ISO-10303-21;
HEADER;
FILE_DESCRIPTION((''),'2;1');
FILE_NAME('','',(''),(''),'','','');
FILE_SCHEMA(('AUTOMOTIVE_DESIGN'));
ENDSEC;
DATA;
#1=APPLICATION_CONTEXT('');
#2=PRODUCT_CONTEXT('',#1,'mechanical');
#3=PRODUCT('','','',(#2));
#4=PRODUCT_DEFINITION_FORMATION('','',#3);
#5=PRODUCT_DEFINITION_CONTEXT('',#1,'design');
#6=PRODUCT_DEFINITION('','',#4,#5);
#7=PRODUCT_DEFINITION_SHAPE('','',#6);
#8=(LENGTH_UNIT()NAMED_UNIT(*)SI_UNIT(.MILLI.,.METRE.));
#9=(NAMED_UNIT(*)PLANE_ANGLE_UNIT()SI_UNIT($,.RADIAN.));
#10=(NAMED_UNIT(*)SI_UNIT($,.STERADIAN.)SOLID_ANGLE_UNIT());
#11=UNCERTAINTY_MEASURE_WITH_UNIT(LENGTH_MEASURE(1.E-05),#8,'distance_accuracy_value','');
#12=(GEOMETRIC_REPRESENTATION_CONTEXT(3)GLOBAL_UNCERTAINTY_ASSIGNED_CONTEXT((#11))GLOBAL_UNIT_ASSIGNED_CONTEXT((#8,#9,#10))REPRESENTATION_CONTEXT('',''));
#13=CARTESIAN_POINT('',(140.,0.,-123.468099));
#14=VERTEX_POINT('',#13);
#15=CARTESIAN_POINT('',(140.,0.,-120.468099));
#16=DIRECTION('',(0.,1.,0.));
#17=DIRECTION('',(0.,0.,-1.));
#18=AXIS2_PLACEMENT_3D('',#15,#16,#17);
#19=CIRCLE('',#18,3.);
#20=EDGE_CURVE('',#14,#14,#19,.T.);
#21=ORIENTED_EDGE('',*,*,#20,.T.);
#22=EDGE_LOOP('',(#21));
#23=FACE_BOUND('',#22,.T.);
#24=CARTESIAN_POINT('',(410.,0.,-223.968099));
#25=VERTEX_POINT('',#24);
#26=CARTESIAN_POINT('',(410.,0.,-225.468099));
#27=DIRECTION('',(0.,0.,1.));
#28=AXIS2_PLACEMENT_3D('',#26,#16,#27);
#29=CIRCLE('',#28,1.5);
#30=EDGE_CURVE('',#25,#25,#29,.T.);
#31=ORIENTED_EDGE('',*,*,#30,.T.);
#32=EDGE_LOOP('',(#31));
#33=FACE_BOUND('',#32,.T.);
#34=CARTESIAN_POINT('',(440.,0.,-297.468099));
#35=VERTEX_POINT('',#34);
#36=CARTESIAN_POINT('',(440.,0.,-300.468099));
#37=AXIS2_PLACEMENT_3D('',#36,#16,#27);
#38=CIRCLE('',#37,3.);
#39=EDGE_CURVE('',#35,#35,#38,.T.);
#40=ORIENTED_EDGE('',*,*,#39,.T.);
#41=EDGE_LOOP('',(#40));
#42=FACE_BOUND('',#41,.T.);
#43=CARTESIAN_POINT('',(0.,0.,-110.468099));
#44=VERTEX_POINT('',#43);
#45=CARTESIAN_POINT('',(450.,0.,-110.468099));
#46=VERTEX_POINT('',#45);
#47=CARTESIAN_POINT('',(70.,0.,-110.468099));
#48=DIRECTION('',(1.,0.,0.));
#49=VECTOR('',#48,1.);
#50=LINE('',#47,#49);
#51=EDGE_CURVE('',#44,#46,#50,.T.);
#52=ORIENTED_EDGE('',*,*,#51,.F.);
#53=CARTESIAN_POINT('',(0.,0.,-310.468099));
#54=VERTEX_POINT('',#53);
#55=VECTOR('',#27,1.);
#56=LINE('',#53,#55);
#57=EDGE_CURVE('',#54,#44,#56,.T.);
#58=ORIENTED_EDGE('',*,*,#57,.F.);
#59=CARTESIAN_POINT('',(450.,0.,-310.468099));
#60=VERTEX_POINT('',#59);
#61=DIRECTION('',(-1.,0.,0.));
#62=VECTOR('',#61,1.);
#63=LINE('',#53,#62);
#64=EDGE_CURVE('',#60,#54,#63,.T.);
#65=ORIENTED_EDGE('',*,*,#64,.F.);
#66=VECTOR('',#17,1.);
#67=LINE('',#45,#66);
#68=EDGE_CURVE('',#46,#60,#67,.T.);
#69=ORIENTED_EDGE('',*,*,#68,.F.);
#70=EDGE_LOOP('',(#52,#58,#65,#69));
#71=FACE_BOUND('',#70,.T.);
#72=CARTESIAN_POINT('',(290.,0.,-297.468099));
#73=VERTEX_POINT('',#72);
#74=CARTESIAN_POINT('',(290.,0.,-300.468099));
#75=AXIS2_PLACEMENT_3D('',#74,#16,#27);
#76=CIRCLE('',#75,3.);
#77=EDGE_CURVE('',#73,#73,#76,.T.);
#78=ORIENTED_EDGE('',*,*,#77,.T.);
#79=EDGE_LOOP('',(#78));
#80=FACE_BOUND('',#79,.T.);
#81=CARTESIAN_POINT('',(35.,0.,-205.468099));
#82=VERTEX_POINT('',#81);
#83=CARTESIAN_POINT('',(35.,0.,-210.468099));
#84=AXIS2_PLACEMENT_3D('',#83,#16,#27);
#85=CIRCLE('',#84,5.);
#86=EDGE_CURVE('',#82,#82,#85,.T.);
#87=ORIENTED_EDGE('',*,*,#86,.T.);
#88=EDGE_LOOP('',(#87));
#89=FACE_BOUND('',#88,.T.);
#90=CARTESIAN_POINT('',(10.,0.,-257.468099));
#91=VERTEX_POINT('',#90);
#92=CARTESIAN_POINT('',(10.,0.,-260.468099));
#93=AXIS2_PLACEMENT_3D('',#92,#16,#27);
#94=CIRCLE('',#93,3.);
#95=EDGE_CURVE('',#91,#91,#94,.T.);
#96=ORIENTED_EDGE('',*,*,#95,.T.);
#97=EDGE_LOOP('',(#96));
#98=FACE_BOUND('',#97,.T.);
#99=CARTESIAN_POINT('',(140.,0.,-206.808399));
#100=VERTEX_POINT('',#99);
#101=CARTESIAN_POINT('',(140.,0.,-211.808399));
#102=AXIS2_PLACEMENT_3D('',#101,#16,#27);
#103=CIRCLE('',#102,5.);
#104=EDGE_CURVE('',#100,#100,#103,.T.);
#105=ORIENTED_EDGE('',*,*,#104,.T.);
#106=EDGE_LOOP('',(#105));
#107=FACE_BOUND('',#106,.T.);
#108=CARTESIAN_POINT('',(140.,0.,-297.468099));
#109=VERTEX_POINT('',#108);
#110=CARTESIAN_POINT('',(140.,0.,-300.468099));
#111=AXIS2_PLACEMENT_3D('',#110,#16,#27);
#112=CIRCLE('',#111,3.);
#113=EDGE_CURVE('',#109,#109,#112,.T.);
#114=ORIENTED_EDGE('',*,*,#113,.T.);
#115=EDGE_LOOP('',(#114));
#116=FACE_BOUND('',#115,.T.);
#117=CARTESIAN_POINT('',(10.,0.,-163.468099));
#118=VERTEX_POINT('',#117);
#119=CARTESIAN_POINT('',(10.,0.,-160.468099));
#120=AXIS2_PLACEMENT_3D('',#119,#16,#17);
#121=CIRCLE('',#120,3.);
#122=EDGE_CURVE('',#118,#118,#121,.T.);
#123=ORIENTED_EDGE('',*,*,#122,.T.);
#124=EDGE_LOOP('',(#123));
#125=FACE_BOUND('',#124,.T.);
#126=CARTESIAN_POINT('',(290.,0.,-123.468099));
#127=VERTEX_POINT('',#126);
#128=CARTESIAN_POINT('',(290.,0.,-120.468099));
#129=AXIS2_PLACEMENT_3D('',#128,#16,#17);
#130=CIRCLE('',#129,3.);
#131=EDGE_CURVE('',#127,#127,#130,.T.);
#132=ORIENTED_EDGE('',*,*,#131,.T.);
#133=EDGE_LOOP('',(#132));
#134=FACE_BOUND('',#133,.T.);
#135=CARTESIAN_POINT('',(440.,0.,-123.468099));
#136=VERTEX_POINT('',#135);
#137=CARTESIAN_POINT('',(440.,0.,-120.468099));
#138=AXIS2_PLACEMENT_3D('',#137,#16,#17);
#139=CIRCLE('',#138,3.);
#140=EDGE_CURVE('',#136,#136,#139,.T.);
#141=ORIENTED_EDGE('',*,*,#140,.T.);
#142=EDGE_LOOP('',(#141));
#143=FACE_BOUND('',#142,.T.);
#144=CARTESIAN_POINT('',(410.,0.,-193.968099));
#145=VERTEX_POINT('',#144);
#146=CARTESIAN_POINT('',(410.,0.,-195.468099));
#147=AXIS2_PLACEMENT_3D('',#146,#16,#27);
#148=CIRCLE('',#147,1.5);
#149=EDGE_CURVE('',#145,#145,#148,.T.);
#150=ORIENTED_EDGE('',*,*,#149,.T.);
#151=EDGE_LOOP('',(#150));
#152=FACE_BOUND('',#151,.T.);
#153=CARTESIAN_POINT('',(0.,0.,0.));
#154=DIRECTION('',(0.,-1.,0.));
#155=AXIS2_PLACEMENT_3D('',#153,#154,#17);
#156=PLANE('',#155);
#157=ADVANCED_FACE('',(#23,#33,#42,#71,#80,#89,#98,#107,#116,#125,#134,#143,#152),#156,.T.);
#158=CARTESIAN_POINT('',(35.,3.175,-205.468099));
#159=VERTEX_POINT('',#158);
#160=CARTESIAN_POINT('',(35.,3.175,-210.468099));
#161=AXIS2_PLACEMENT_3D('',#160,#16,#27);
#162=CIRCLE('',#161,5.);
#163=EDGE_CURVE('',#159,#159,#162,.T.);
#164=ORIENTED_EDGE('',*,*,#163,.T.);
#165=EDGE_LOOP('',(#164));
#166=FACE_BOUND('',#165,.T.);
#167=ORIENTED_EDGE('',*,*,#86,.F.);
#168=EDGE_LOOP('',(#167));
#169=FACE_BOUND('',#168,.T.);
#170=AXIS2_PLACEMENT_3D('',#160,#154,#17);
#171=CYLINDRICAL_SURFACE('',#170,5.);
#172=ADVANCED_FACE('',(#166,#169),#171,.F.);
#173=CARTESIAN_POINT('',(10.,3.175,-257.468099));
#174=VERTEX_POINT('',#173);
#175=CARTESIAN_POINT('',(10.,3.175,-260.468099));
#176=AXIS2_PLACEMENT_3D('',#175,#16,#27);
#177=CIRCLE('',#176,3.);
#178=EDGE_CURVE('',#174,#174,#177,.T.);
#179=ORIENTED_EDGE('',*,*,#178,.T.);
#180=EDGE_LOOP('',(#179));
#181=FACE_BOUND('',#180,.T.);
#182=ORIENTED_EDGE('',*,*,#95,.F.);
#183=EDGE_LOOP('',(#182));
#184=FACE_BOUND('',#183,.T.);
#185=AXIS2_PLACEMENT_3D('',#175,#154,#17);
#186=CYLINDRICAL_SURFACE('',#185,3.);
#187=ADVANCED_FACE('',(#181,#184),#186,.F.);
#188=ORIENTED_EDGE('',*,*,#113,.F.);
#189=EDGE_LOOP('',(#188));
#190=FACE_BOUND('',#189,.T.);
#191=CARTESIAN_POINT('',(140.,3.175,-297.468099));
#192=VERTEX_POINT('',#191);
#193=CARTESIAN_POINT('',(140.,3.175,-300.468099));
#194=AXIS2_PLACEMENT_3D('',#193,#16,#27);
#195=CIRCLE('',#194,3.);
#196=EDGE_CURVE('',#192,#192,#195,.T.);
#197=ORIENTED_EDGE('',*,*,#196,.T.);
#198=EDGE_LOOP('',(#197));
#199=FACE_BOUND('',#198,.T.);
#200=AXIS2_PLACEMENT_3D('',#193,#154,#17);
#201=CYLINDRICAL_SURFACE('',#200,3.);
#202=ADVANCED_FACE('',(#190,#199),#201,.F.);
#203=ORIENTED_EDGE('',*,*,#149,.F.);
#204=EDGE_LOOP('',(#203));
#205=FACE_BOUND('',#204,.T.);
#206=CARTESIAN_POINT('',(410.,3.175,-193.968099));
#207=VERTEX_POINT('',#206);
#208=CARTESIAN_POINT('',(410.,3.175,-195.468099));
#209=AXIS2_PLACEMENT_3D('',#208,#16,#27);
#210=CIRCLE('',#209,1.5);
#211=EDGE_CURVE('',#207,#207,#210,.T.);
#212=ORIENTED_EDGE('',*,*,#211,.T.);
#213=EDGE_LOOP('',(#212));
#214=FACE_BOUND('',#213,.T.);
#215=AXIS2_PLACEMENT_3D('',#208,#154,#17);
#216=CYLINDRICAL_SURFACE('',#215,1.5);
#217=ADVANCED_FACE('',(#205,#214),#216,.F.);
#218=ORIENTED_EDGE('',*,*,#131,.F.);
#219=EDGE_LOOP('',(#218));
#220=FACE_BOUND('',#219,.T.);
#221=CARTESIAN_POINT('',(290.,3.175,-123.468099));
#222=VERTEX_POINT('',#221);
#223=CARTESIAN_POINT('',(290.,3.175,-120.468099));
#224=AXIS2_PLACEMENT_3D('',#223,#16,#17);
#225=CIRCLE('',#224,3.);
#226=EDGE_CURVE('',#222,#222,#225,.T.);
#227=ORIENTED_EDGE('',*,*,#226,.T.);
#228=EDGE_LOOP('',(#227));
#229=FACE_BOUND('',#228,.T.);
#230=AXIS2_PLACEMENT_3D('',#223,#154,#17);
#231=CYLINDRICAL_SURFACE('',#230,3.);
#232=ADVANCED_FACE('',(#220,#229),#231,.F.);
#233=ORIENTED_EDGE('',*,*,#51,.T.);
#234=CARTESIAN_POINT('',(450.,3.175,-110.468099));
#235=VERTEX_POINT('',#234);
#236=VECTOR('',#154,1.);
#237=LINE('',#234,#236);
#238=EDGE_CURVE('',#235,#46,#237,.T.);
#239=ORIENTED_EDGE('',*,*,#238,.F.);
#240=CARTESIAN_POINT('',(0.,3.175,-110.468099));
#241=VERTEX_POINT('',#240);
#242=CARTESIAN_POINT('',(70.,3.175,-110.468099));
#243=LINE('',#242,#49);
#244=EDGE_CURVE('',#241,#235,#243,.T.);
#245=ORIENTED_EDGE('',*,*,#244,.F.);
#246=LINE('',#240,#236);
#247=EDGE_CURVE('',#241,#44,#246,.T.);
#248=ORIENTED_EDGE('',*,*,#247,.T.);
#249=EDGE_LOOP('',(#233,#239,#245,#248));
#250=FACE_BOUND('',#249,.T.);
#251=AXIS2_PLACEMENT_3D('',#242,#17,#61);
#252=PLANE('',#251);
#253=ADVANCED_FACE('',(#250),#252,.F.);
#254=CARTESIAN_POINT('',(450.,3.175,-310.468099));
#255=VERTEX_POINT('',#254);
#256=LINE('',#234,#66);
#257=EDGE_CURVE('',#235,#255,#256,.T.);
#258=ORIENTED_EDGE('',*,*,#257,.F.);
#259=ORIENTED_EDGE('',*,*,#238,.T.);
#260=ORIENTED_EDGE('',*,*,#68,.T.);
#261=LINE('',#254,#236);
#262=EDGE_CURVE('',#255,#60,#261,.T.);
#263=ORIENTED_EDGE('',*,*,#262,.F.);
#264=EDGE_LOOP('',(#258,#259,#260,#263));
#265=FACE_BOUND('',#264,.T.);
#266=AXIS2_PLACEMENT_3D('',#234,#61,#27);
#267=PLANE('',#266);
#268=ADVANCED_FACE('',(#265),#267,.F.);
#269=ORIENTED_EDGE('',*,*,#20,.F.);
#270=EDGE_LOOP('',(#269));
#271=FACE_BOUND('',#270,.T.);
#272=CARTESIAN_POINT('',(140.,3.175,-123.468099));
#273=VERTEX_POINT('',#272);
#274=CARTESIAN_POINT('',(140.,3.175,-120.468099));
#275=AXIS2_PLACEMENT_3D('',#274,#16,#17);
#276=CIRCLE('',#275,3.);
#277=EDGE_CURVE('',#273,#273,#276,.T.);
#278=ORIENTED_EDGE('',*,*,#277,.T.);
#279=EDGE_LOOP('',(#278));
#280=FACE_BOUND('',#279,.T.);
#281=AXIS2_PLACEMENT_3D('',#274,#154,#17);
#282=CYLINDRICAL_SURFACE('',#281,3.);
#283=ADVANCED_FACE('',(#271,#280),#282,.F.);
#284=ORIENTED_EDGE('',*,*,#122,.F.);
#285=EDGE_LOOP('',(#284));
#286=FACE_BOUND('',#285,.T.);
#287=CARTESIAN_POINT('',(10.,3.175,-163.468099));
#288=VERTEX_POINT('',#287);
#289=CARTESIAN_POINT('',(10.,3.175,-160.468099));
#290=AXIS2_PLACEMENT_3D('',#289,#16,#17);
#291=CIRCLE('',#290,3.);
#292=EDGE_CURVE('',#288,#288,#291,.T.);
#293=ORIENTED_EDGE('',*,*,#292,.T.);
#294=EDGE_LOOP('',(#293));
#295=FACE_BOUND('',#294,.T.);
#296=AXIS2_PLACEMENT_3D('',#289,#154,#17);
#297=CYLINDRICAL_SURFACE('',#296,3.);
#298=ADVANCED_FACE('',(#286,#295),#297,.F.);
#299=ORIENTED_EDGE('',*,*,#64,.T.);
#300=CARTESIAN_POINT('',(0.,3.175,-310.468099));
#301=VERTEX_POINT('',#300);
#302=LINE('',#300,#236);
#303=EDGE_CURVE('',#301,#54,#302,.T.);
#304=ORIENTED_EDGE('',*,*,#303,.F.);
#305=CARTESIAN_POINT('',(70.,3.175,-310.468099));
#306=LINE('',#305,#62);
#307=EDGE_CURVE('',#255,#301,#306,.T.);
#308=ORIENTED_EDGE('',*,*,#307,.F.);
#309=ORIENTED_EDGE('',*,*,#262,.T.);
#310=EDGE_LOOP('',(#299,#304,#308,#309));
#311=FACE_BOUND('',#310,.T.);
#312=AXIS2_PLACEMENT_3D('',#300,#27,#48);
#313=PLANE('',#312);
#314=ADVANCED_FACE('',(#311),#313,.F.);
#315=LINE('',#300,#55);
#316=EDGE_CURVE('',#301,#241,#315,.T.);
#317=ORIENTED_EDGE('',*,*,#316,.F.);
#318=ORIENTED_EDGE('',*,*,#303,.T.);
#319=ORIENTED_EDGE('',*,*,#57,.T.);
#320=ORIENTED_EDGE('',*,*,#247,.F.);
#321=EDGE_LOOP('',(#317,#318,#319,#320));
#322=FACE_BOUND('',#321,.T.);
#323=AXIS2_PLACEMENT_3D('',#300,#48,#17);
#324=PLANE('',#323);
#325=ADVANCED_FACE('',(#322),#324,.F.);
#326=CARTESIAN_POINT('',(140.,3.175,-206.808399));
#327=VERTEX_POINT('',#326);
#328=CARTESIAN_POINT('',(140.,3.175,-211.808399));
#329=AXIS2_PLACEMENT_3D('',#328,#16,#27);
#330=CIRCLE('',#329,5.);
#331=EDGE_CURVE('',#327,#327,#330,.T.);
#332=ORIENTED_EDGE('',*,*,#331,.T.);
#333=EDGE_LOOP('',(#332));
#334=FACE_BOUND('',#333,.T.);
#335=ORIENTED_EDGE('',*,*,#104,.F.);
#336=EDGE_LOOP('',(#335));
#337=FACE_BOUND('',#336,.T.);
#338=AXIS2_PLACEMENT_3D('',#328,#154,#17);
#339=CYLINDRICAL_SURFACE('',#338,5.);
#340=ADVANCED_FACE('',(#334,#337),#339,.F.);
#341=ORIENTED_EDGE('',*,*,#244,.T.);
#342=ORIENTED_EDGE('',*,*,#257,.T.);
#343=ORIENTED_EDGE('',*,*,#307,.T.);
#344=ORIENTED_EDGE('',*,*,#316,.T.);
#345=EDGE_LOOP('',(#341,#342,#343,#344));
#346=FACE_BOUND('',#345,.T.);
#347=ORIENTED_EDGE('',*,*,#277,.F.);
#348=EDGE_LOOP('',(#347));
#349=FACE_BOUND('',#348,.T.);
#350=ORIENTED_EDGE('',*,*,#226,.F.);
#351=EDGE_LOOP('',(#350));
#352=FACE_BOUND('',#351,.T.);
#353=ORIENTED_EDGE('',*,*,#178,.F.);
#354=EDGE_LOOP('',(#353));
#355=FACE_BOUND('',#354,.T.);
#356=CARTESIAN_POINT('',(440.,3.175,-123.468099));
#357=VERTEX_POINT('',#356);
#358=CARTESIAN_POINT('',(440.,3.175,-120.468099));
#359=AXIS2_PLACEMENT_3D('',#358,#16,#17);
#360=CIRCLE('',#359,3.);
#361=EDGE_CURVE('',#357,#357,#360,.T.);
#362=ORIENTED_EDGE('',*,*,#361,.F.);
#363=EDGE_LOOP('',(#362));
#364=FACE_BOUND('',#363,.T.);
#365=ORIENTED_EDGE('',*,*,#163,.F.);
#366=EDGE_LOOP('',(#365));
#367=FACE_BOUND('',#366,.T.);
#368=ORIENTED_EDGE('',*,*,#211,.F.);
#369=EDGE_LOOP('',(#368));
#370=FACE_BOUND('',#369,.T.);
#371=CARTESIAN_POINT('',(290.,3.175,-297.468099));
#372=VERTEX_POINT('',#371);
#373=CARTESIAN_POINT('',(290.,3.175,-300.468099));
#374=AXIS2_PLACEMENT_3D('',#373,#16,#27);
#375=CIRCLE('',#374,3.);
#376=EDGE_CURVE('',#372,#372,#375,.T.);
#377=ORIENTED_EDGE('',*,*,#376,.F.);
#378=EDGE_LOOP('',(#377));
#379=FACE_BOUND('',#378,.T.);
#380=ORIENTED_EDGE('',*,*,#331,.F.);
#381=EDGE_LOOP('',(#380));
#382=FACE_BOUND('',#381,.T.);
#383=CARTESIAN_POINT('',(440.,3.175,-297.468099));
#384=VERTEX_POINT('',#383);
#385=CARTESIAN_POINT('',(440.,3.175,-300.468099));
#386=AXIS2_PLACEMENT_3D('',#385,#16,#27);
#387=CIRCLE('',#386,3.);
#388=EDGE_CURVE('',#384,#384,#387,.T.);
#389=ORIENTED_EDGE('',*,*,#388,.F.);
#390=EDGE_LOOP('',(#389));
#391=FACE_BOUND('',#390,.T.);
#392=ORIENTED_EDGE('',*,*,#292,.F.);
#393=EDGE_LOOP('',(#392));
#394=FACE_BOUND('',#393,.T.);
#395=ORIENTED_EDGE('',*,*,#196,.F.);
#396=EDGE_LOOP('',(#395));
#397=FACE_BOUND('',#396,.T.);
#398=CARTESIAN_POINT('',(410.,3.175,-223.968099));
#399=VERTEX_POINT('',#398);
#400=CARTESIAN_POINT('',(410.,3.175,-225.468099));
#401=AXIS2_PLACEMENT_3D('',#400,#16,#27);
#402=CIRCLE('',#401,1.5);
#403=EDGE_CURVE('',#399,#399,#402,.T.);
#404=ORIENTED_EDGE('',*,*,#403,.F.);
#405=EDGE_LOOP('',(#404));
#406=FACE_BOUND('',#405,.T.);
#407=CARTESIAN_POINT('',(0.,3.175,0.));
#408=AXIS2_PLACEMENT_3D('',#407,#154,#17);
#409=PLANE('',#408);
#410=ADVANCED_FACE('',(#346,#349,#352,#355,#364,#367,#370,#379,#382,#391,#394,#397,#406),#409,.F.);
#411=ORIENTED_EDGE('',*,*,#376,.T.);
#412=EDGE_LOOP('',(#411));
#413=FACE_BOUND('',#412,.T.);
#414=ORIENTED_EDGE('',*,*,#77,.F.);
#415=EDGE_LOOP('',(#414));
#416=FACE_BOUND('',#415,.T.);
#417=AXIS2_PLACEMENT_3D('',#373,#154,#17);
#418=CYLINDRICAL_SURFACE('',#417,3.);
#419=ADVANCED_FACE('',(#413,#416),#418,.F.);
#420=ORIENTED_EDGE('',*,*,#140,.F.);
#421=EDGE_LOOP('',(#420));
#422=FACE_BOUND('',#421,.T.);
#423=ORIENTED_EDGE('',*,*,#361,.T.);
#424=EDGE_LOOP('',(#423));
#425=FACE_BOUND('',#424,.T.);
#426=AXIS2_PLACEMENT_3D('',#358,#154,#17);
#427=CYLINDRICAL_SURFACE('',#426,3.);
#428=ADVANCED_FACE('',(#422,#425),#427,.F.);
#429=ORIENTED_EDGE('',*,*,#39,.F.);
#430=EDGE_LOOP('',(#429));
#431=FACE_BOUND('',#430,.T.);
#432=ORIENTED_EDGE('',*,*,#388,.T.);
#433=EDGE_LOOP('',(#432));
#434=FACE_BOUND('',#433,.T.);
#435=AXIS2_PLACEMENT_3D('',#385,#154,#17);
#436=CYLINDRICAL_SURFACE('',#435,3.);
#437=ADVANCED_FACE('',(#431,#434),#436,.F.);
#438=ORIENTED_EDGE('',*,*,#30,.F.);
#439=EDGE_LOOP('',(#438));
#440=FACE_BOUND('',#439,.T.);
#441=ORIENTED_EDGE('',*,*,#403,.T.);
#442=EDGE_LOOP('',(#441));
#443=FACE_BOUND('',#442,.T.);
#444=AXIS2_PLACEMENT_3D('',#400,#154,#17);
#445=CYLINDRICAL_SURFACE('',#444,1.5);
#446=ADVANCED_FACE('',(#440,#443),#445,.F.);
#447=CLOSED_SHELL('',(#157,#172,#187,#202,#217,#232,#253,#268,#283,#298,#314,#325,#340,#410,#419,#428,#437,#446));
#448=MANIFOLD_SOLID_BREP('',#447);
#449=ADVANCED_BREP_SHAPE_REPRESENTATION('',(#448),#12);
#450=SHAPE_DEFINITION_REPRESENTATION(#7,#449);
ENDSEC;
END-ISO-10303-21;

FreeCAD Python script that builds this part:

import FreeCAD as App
import Part
import Sketcher

doc = App.newDocument("Part")
body = doc.addObject("PartDesign::Body", "Body")

# Sketch on XZ plane
sketch1 = body.newObject("Sketcher::SketchObject", "Sketch")
sketch1.AttachmentSupport = (doc.getObject("XZ_Plane"), [""])
sketch1.MapMode = "FlatFace"
sketch1.addGeometry([
    Part.LineSegment(App.Vector(450, -110.5, 0), App.Vector(450, -310.5, 0)),  # 0
    Part.LineSegment(App.Vector(450, -310.5, 0), App.Vector(0, -310.5, 0)),  # 1
    Part.LineSegment(App.Vector(0, -310.5, 0), App.Vector(0, -110.5, 0)),  # 2
    Part.LineSegment(App.Vector(0, -110.5, 0), App.Vector(450, -110.5, 0)),  # 3
    Part.Circle(App.Vector(10, -160.5, 0), App.Vector(0, 0, 1), 3),  # 4
    Part.Circle(App.Vector(140, -120.5, 0), App.Vector(0, 0, 1), 3),  # 5
    Part.Circle(App.Vector(290, -120.5, 0), App.Vector(0, 0, 1), 3),  # 6
    Part.Circle(App.Vector(440, -120.5, 0), App.Vector(0, 0, 1), 3),  # 7
    Part.Circle(App.Vector(410, -195.5, 0), App.Vector(0, 0, 1), 1.5),  # 8
    Part.Circle(App.Vector(35, -210.5, 0), App.Vector(0, 0, 1), 5),  # 9
    Part.Circle(App.Vector(140, -211.8, 0), App.Vector(0, 0, 1), 5),  # 10
    Part.Circle(App.Vector(10, -260.5, 0), App.Vector(0, 0, 1), 3),  # 11
    Part.Circle(App.Vector(140, -300.5, 0), App.Vector(0, 0, 1), 3),  # 12
    Part.Circle(App.Vector(410, -225.5, 0), App.Vector(0, 0, 1), 1.5),  # 13
    Part.Circle(App.Vector(290, -300.5, 0), App.Vector(0, 0, 1), 3),  # 14
    Part.Circle(App.Vector(440, -300.5, 0), App.Vector(0, 0, 1), 3),  # 15
], False)
sketch1.addConstraint([
    Sketcher.Constraint("Coincident", 0, 2, 1, 1),
    Sketcher.Constraint("Coincident", 1, 2, 2, 1),
    Sketcher.Constraint("Coincident", 2, 2, 3, 1),
    Sketcher.Constraint("Coincident", 3, 2, 0, 1),
    Sketcher.Constraint("Vertical", 0),
    Sketcher.Constraint("Horizontal", 1),
    Sketcher.Constraint("Vertical", 2),
    Sketcher.Constraint("Horizontal", 3),
    Sketcher.Constraint("Equal", 4, 5),
    Sketcher.Constraint("Equal", 5, 6),
    Sketcher.Constraint("Equal", 6, 7),
    Sketcher.Constraint("Equal", 9, 10),
    Sketcher.Constraint("Equal", 7, 11),
    Sketcher.Constraint("Equal", 11, 12),
    Sketcher.Constraint("Equal", 8, 13),
    Sketcher.Constraint("Equal", 12, 14),
    Sketcher.Constraint("Equal", 14, 15),
    Sketcher.Constraint("PointOnObject", 1, 2, -2),
    Sketcher.Constraint("Horizontal", 5, 3, 6, 3),
    Sketcher.Constraint("Horizontal", 6, 3, 7, 3),
    Sketcher.Constraint("Horizontal", 12, 3, 14, 3),
    Sketcher.Constraint("Horizontal", 14, 3, 15, 3),
    Sketcher.Constraint("Vertical", 5, 3, 10, 3),
    Sketcher.Constraint("Vertical", 4, 3, 11, 3),
    Sketcher.Constraint("Vertical", 10, 3, 12, 3),
    Sketcher.Constraint("Vertical", 8, 3, 13, 3),
    Sketcher.Constraint("Vertical", 6, 3, 14, 3),
    Sketcher.Constraint("Vertical", 7, 3, 15, 3),
    Sketcher.Constraint("Diameter", 4, 6.0),
    Sketcher.Constraint("Diameter", 8, 3.0),
    Sketcher.Constraint("Diameter", 9, 10.0),
    Sketcher.Constraint("DistanceX", 1, 2, 1, 1, 450.0),
    Sketcher.Constraint("DistanceY", 0, 2, 0, 1, 200.0),
    Sketcher.Constraint("DistanceX", -1, 1, 4, 3, 10.0),
    Sketcher.Constraint("DistanceX", -1, 1, 5, 3, 140.0),
    Sketcher.Constraint("DistanceX", -1, 1, 6, 3, 290.0),
    Sketcher.Constraint("DistanceX", -1, 1, 7, 3, 440.0),
    Sketcher.Constraint("DistanceX", -1, 1, 8, 3, 410.0),
    Sketcher.Constraint("DistanceX", -1, 1, 9, 3, 35.0),
    Sketcher.Constraint("DistanceY", 4, 3, 5, 3, 40.0),
    Sketcher.Constraint("DistanceY", 8, 3, 7, 3, 75.0),
    Sketcher.Constraint("DistanceY", 9, 3, 4, 3, 50.0),
    Sketcher.Constraint("DistanceY", 11, 3, 9, 3, 50.0),
    Sketcher.Constraint("DistanceY", 12, 3, 11, 3, 40.0),
    Sketcher.Constraint("DistanceY", 13, 3, 8, 3, 30.0),
    Sketcher.Constraint("DistanceY", 0, 2, 15, 3, 10.0),
    Sketcher.Constraint("DistanceY", 4, 3, -1, 1, 160.468099),
    Sketcher.Constraint("DistanceY", 10, 3, -1, 1, 211.808399),
])
pad1 = body.newObject("PartDesign::Pad", "Pad")
pad1.Profile = sketch1
pad1.Length = 3.175
pad1.Reversed = True

doc.recompute()
